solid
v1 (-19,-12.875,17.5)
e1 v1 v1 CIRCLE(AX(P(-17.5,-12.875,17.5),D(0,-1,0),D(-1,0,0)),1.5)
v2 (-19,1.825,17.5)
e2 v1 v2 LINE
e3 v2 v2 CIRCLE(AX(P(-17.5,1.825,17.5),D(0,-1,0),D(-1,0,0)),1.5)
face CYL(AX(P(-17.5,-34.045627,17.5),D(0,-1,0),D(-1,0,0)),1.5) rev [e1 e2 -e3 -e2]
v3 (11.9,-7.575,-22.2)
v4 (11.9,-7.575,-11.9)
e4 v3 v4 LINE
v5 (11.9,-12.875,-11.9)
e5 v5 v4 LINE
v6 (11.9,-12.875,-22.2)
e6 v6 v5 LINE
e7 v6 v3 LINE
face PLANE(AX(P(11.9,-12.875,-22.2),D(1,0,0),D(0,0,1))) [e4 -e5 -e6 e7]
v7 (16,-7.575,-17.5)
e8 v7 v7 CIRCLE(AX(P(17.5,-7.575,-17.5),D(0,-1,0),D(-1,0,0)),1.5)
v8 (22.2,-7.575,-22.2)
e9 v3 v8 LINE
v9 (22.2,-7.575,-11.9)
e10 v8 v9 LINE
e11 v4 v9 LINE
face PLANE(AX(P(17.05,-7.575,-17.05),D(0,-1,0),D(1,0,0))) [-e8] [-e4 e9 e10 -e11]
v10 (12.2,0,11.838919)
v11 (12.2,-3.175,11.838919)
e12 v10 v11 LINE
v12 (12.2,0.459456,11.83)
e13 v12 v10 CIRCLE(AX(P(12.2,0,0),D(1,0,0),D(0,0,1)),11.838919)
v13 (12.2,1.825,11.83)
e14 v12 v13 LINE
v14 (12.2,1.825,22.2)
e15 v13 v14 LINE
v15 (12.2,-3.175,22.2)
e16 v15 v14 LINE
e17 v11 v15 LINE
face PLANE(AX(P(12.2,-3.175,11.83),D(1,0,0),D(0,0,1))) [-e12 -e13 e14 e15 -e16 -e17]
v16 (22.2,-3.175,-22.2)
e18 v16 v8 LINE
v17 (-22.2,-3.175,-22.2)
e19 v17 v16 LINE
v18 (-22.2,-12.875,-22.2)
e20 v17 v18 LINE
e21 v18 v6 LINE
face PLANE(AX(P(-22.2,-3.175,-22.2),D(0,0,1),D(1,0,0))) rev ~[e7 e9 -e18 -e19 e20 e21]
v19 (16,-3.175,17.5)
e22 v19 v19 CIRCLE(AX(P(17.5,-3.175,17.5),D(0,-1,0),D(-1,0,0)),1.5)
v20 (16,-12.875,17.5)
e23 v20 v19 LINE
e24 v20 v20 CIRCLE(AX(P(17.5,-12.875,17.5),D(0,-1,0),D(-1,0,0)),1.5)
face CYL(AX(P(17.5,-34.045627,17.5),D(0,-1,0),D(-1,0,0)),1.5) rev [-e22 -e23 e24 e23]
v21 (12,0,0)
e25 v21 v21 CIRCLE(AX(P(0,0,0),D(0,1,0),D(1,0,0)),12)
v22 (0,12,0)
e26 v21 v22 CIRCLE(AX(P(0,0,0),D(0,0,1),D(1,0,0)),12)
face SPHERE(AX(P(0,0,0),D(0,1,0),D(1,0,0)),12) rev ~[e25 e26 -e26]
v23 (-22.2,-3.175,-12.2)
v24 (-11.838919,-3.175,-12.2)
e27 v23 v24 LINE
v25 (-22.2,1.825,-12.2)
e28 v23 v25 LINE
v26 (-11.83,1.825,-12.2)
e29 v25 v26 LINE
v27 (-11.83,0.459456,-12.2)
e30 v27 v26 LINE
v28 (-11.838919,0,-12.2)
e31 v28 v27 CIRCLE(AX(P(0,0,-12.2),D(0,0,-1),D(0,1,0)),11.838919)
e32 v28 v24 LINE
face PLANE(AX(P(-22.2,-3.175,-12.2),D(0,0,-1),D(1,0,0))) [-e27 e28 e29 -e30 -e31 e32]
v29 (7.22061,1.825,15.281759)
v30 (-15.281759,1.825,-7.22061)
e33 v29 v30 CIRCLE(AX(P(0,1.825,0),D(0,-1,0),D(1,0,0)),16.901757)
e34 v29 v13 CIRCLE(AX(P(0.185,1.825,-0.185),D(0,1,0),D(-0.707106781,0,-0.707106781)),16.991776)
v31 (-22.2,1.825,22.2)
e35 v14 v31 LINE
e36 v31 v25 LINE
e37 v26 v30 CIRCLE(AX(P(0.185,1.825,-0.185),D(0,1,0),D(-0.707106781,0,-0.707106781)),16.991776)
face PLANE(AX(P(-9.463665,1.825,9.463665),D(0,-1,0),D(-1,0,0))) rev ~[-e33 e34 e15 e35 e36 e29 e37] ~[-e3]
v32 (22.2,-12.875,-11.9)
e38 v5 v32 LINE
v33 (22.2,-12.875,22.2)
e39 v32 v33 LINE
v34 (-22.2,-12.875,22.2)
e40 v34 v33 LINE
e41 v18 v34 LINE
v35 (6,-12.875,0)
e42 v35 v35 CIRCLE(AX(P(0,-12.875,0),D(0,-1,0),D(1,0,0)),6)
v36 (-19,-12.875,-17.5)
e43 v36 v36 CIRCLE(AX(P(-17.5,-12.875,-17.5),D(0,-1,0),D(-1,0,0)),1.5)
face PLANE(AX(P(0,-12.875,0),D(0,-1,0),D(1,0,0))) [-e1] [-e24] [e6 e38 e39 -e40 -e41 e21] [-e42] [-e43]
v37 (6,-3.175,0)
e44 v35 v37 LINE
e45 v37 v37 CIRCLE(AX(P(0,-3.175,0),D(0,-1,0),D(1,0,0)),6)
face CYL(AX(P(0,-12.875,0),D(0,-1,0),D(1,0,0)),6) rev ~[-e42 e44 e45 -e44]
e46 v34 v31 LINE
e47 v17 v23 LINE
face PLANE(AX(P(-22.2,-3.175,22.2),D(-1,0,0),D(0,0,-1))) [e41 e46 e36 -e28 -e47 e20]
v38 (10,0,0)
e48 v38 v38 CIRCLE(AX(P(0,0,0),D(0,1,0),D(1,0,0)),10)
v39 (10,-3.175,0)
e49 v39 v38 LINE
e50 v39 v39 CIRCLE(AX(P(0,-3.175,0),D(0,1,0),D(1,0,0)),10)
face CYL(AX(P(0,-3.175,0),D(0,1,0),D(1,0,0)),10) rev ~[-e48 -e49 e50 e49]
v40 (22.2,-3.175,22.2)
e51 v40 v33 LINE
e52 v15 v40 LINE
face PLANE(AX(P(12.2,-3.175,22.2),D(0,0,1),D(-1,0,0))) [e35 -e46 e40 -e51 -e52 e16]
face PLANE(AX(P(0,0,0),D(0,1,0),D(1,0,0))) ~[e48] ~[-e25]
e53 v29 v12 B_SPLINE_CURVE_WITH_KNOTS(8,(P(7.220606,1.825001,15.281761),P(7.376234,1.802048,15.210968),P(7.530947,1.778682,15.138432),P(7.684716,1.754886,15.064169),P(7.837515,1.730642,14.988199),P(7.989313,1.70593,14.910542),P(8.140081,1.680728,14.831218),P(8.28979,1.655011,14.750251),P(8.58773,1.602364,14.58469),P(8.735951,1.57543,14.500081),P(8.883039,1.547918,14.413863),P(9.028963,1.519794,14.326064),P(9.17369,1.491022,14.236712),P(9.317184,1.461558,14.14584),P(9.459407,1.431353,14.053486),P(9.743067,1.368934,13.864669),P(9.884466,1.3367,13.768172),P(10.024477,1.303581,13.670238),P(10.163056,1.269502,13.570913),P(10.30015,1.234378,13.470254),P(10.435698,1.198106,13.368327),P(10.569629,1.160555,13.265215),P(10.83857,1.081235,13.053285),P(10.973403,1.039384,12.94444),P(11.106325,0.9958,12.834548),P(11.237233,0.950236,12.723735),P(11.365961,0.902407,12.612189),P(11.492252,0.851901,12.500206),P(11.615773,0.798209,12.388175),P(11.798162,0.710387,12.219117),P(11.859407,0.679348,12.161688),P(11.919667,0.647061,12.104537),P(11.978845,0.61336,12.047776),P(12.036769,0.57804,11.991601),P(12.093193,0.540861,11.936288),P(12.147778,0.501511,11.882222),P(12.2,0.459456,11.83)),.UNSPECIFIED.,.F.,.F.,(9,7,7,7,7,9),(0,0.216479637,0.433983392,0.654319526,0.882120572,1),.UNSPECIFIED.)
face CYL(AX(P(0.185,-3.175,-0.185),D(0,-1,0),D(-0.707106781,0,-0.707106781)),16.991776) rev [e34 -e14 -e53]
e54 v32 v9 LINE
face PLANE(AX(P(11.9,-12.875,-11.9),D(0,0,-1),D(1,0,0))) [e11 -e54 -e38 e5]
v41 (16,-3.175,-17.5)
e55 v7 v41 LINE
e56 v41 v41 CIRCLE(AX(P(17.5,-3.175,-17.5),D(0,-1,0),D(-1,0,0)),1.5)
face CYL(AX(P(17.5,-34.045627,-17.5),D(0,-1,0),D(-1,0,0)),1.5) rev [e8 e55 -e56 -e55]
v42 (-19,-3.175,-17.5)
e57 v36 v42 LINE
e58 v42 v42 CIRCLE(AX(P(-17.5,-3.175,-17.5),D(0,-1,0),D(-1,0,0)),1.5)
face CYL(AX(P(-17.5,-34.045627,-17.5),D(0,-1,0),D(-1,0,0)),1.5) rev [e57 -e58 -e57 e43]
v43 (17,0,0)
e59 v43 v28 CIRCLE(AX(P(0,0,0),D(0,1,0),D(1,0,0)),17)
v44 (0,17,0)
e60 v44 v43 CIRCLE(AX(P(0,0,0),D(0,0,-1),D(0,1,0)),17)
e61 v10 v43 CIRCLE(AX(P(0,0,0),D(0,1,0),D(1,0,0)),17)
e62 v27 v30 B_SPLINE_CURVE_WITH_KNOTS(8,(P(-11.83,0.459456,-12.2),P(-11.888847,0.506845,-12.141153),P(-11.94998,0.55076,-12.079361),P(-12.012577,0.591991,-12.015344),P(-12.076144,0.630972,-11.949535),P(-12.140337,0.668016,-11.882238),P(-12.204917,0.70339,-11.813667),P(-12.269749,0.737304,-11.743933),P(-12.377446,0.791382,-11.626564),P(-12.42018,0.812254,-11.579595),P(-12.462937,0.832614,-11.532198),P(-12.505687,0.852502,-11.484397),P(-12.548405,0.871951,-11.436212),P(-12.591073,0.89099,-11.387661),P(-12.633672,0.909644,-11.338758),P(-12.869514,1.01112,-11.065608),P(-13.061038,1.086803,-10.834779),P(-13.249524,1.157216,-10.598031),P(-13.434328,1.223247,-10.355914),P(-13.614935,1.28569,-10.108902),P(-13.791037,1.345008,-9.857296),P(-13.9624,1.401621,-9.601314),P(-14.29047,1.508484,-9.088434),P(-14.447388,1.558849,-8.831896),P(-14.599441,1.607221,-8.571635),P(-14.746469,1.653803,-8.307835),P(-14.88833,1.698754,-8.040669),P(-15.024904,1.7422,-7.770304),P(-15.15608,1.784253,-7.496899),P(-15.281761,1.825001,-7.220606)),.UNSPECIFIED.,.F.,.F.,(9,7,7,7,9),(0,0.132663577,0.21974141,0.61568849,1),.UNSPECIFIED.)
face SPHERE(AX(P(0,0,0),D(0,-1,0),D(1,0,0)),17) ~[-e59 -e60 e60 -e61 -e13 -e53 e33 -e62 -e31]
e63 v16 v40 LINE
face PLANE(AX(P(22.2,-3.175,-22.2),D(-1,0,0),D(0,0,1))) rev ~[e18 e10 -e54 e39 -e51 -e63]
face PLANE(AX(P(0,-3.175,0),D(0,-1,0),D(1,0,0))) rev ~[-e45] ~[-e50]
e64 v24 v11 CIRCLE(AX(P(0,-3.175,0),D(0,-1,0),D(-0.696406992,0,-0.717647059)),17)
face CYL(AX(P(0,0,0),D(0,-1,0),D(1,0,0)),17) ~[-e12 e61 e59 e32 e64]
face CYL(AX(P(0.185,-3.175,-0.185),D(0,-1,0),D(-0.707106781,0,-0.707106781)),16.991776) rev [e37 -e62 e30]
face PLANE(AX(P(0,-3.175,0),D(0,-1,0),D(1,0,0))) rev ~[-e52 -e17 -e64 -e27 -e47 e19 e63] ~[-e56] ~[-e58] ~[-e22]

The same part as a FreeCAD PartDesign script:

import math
import FreeCAD as App
import Part
import Sketcher
Q = App.Units.Quantity


def add_polygon(sketch, points):
    """Adds a closed chain of lines whose ends are joined by coincident constraints."""
    first, n = sketch.GeometryCount, len(points)
    for a, b in zip(points, points[1:] + points[:1]):
        sketch.addGeometry(Part.LineSegment(App.Vector(*a, 0), App.Vector(*b, 0)), False)
    for i in range(n):
        sketch.addConstraint(Sketcher.Constraint("Coincident", first + i, 2, first + (i + 1) % n, 1))

doc = App.newDocument("Part")
body = doc.addObject("PartDesign::Body", "Body")

sketch1 = body.newObject("Sketcher::SketchObject", "Sketch")
sketch1.AttachmentSupport = (doc.getObject("XY_Plane"), [""])
sketch1.MapMode = "FlatFace"
sketch1.addGeometry(Part.LineSegment(App.Vector(-10, 0, 0), App.Vector(-12, 0, 0)), False)
sketch1.addGeometry(Part.ArcOfCircle(Part.Circle(App.Vector(0, 0, 0), App.Vector(0, 0, 1), 12), math.radians(90), math.radians(180)), False)
sketch1.addGeometry(Part.LineSegment(App.Vector(0, 12, 0), App.Vector(0, 17, 0)), False)
sketch1.addGeometry(Part.ArcOfCircle(Part.Circle(App.Vector(0, 0, 0), App.Vector(0, 0, 1), 17), math.radians(90), math.radians(180)), False)
sketch1.addGeometry(Part.LineSegment(App.Vector(-17, 0, 0), App.Vector(-17, -3.2, 0)), False)
sketch1.addGeometry(Part.LineSegment(App.Vector(-17, -3.2, 0), App.Vector(-10, -3.2, 0)), False)
sketch1.addGeometry(Part.LineSegment(App.Vector(-10, -3.2, 0), App.Vector(-10, 0, 0)), False)
sketch1.addConstraint(Sketcher.Constraint("Coincident", 0, 2, 1, 2))
sketch1.addConstraint(Sketcher.Constraint("Coincident", 1, 1, 2, 1))
sketch1.addConstraint(Sketcher.Constraint("Coincident", 2, 2, 3, 1))
sketch1.addConstraint(Sketcher.Constraint("Tangent", 3, 2, 4, 1))
sketch1.addConstraint(Sketcher.Constraint("Coincident", 4, 2, 5, 1))
sketch1.addConstraint(Sketcher.Constraint("Coincident", 5, 2, 6, 1))
sketch1.addConstraint(Sketcher.Constraint("Coincident", 6, 2, 0, 1))
sketch1.addConstraint(Sketcher.Constraint("Horizontal", 0))
sketch1.addConstraint(Sketcher.Constraint("Vertical", 2))
sketch1.addConstraint(Sketcher.Constraint("Vertical", 4))
sketch1.addConstraint(Sketcher.Constraint("Horizontal", 5))
sketch1.addConstraint(Sketcher.Constraint("Vertical", 6))
sketch1.addConstraint(Sketcher.Constraint("Coincident", 1, 3, -1, 1))
sketch1.addConstraint(Sketcher.Constraint("Coincident", 3, 3, -1, 1))
sketch1.addConstraint(Sketcher.Constraint("PointOnObject", 0, 2, -1))
sketch1.addConstraint(Sketcher.Constraint("PointOnObject", 1, 1, -2))
sketch1.addConstraint(Sketcher.Constraint("Radius", 1, Q("12 mm")))
sketch1.addConstraint(Sketcher.Constraint("Radius", 3, Q("17 mm")))
sketch1.addConstraint(Sketcher.Constraint("DistanceX", 0, 2, 0, 1, Q("2 mm")))
sketch1.addConstraint(Sketcher.Constraint("DistanceY", 4, 2, 4, 1, Q("3.175 mm")))
revolution = body.newObject("PartDesign::Revolution", "Revolution")
revolution.Profile = sketch1
revolution.ReferenceAxis = (sketch1, ["V_Axis"])
revolution.Angle = 360

sketch2 = body.newObject("Sketcher::SketchObject", "Sketch001")
sketch2.AttachmentSupport = (doc.getObject("XZ_Plane"), [""])
sketch2.MapMode = "FlatFace"
sketch2.AttachmentOffset = App.Placement(App.Vector(0, 0, 3.175), App.Rotation())
add_polygon(sketch2, [(-22, 22), (-22, -22), (22, -22), (22, 22)])
sketch2.addConstraint(Sketcher.Constraint("Vertical", 0))
sketch2.addConstraint(Sketcher.Constraint("Horizontal", 1))
sketch2.addConstraint(Sketcher.Constraint("Vertical", 2))
sketch2.addConstraint(Sketcher.Constraint("Horizontal", 3))
sketch2.addConstraint(Sketcher.Constraint("Symmetric", 0, 2, 2, 2, -1, 1))
sketch2.addConstraint(Sketcher.Constraint("Equal", 3, 0))
sketch2.addConstraint(Sketcher.Constraint("DistanceX", 1, 1, 1, 2, Q("44.4 mm")))
pad1 = body.newObject("PartDesign::Pad", "Pad")
pad1.Profile = sketch2
pad1.Length = 9.7

sketch3 = body.newObject("Sketcher::SketchObject", "Sketch002")
sketch3.AttachmentSupport = (doc.getObject("XZ_Plane"), [""])
sketch3.MapMode = "FlatFace"
sketch3.AttachmentOffset = App.Placement(App.Vector(0, 0, 12.875), App.Rotation())
add_polygon(sketch3, [(12, -12), (12, -22), (22, -22), (22, -12)])
sketch3.addConstraint(Sketcher.Constraint("Vertical", 0))
sketch3.addConstraint(Sketcher.Constraint("Horizontal", 1))
sketch3.addConstraint(Sketcher.Constraint("Vertical", 2))
sketch3.addConstraint(Sketcher.Constraint("Horizontal", 3))
sketch3.addConstraint(Sketcher.Constraint("Equal", 3, 0))
sketch3.addConstraint(Sketcher.Constraint("DistanceX", 1, 1, 1, 2, Q("10.3 mm")))
sketch3.addConstraint(Sketcher.Constraint("DistanceX", -1, 1, 0, 2, Q("11.9 mm")))
sketch3.addConstraint(Sketcher.Constraint("DistanceY", 0, 2, -1, 1, Q("22.2 mm")))
pocket1 = body.newObject("PartDesign::Pocket", "Pocket")
pocket1.Profile = sketch3
pocket1.Length = 5.3

sketch4 = body.newObject("Sketcher::SketchObject", "Sketch003")
sketch4.AttachmentSupport = (doc.getObject("XZ_Plane"), [""])
sketch4.MapMode = "FlatFace"
sketch4.AttachmentOffset = App.Placement(App.Vector(0, 0, 12.875), App.Rotation())
sketch4.addGeometry(Part.Circle(App.Vector(0, 0, 0), App.Vector(0, 0, 1), 6), False)
sketch4.addConstraint(Sketcher.Constraint("Coincident", 0, 3, -1, 1))
sketch4.addConstraint(Sketcher.Constraint("Diameter", 0, Q("12 mm")))
pocket2 = body.newObject("PartDesign::Pocket", "Pocket001")
pocket2.Profile = sketch4
pocket2.Length = 14.3

sketch5 = body.newObject("Sketcher::SketchObject", "Sketch004")
sketch5.AttachmentSupport = (doc.getObject("XZ_Plane"), [""])
sketch5.MapMode = "FlatFace"
sketch5.AttachmentOffset = App.Placement(App.Vector(0, 0, 3.175), App.Rotation())
sketch5.addGeometry(Part.LineSegment(App.Vector(-22, -12, 0), App.Vector(-22, 22, 0)), False)
sketch5.addGeometry(Part.LineSegment(App.Vector(-22, 22, 0), App.Vector(12, 22, 0)), False)
sketch5.addGeometry(Part.LineSegment(App.Vector(12, 22, 0), App.Vector(12, 12, 0)), False)
sketch5.addGeometry(Part.ArcOfCircle(Part.Circle(App.Vector(0, 0, 0), App.Vector(0, 0, 1), 17), math.radians(45), math.radians(225)), False)
sketch5.addGeometry(Part.LineSegment(App.Vector(-12, -12, 0), App.Vector(-22, -12, 0)), False)
sketch5.addConstraint(Sketcher.Constraint("Coincident", 0, 2, 1, 1))
sketch5.addConstraint(Sketcher.Constraint("Coincident", 1, 2, 2, 1))
sketch5.addConstraint(Sketcher.Constraint("Coincident", 2, 2, 3, 1))
sketch5.addConstraint(Sketcher.Constraint("Coincident", 3, 2, 4, 1))
sketch5.addConstraint(Sketcher.Constraint("Coincident", 4, 2, 0, 1))
sketch5.addConstraint(Sketcher.Constraint("Vertical", 0))
sketch5.addConstraint(Sketcher.Constraint("Horizontal", 1))
sketch5.addConstraint(Sketcher.Constraint("Vertical", 2))
sketch5.addConstraint(Sketcher.Constraint("Horizontal", 4))
sketch5.addConstraint(Sketcher.Constraint("Equal", 1, 0))
sketch5.addConstraint(Sketcher.Constraint("Equal", 4, 2))
sketch5.addConstraint(Sketcher.Constraint("DistanceX", 1, 1, 1, 2, Q("34.4 mm")))
sketch5.addConstraint(Sketcher.Constraint("DistanceX", 4, 2, 4, 1, Q("10.37 mm")))
sketch5.addConstraint(Sketcher.Constraint("DistanceX", 0, 2, -1, 1, Q("22.2 mm")))
sketch5.addConstraint(Sketcher.Constraint("DistanceY", -1, 1, 0, 2, Q("22.2 mm")))
sketch5.addConstraint(Sketcher.Constraint("DistanceX", -1, 1, 3, 3, Q("0.185 mm")))
pad2 = body.newObject("PartDesign::Pad", "Pad001")
pad2.Profile = sketch5
pad2.Length = 5
pad2.Reversed = True

sketch6 = body.newObject("Sketcher::SketchObject", "Sketch005")
sketch6.AttachmentSupport = (doc.getObject("XZ_Plane"), [""])
sketch6.MapMode = "FlatFace"
sketch6.AttachmentOffset = App.Placement(App.Vector(0, 0, -1.825), App.Rotation())
sketch6.addGeometry(Part.Circle(App.Vector(-17.5, 17.5, 0), App.Vector(0, 0, 1), 1.5), False)
sketch6.addGeometry(Part.Circle(App.Vector(17.5, 17.5, 0), App.Vector(0, 0, 1), 1.5), False)
sketch6.addGeometry(Part.Circle(App.Vector(17.5, -17.5, 0), App.Vector(0, 0, 1), 1.5), False)
sketch6.addGeometry(Part.Circle(App.Vector(-17.5, -17.5, 0), App.Vector(0, 0, 1), 1.5), False)
sketch6.addConstraint(Sketcher.Constraint("Equal", 0, 1))
sketch6.addConstraint(Sketcher.Constraint("Equal", 1, 2))
sketch6.addConstraint(Sketcher.Constraint("Equal", 2, 3))
sketch6.addConstraint(Sketcher.Constraint("Symmetric", 0, 3, 2, 3, -1, 1))
sketch6.addConstraint(Sketcher.Constraint("Symmetric", 1, 3, 3, 3, -1, 1))
sketch6.addConstraint(Sketcher.Constraint("Symmetric", 0, 3, 1, 3, -2))
sketch6.addConstraint(Sketcher.Constraint("Diameter", 0, Q("3 mm")))
sketch6.addConstraint(Sketcher.Constraint("DistanceX", 0, 3, 1, 3, Q("35 mm")))
sketch6.addConstraint(Sketcher.Constraint("DistanceY", 2, 3, 1, 3, Q("35 mm")))
pocket3 = body.newObject("PartDesign::Pocket", "Pocket002")
pocket3.Profile = sketch6
pocket3.Type = "ThroughAll"
pocket3.Midplane = True

doc.recompute()
